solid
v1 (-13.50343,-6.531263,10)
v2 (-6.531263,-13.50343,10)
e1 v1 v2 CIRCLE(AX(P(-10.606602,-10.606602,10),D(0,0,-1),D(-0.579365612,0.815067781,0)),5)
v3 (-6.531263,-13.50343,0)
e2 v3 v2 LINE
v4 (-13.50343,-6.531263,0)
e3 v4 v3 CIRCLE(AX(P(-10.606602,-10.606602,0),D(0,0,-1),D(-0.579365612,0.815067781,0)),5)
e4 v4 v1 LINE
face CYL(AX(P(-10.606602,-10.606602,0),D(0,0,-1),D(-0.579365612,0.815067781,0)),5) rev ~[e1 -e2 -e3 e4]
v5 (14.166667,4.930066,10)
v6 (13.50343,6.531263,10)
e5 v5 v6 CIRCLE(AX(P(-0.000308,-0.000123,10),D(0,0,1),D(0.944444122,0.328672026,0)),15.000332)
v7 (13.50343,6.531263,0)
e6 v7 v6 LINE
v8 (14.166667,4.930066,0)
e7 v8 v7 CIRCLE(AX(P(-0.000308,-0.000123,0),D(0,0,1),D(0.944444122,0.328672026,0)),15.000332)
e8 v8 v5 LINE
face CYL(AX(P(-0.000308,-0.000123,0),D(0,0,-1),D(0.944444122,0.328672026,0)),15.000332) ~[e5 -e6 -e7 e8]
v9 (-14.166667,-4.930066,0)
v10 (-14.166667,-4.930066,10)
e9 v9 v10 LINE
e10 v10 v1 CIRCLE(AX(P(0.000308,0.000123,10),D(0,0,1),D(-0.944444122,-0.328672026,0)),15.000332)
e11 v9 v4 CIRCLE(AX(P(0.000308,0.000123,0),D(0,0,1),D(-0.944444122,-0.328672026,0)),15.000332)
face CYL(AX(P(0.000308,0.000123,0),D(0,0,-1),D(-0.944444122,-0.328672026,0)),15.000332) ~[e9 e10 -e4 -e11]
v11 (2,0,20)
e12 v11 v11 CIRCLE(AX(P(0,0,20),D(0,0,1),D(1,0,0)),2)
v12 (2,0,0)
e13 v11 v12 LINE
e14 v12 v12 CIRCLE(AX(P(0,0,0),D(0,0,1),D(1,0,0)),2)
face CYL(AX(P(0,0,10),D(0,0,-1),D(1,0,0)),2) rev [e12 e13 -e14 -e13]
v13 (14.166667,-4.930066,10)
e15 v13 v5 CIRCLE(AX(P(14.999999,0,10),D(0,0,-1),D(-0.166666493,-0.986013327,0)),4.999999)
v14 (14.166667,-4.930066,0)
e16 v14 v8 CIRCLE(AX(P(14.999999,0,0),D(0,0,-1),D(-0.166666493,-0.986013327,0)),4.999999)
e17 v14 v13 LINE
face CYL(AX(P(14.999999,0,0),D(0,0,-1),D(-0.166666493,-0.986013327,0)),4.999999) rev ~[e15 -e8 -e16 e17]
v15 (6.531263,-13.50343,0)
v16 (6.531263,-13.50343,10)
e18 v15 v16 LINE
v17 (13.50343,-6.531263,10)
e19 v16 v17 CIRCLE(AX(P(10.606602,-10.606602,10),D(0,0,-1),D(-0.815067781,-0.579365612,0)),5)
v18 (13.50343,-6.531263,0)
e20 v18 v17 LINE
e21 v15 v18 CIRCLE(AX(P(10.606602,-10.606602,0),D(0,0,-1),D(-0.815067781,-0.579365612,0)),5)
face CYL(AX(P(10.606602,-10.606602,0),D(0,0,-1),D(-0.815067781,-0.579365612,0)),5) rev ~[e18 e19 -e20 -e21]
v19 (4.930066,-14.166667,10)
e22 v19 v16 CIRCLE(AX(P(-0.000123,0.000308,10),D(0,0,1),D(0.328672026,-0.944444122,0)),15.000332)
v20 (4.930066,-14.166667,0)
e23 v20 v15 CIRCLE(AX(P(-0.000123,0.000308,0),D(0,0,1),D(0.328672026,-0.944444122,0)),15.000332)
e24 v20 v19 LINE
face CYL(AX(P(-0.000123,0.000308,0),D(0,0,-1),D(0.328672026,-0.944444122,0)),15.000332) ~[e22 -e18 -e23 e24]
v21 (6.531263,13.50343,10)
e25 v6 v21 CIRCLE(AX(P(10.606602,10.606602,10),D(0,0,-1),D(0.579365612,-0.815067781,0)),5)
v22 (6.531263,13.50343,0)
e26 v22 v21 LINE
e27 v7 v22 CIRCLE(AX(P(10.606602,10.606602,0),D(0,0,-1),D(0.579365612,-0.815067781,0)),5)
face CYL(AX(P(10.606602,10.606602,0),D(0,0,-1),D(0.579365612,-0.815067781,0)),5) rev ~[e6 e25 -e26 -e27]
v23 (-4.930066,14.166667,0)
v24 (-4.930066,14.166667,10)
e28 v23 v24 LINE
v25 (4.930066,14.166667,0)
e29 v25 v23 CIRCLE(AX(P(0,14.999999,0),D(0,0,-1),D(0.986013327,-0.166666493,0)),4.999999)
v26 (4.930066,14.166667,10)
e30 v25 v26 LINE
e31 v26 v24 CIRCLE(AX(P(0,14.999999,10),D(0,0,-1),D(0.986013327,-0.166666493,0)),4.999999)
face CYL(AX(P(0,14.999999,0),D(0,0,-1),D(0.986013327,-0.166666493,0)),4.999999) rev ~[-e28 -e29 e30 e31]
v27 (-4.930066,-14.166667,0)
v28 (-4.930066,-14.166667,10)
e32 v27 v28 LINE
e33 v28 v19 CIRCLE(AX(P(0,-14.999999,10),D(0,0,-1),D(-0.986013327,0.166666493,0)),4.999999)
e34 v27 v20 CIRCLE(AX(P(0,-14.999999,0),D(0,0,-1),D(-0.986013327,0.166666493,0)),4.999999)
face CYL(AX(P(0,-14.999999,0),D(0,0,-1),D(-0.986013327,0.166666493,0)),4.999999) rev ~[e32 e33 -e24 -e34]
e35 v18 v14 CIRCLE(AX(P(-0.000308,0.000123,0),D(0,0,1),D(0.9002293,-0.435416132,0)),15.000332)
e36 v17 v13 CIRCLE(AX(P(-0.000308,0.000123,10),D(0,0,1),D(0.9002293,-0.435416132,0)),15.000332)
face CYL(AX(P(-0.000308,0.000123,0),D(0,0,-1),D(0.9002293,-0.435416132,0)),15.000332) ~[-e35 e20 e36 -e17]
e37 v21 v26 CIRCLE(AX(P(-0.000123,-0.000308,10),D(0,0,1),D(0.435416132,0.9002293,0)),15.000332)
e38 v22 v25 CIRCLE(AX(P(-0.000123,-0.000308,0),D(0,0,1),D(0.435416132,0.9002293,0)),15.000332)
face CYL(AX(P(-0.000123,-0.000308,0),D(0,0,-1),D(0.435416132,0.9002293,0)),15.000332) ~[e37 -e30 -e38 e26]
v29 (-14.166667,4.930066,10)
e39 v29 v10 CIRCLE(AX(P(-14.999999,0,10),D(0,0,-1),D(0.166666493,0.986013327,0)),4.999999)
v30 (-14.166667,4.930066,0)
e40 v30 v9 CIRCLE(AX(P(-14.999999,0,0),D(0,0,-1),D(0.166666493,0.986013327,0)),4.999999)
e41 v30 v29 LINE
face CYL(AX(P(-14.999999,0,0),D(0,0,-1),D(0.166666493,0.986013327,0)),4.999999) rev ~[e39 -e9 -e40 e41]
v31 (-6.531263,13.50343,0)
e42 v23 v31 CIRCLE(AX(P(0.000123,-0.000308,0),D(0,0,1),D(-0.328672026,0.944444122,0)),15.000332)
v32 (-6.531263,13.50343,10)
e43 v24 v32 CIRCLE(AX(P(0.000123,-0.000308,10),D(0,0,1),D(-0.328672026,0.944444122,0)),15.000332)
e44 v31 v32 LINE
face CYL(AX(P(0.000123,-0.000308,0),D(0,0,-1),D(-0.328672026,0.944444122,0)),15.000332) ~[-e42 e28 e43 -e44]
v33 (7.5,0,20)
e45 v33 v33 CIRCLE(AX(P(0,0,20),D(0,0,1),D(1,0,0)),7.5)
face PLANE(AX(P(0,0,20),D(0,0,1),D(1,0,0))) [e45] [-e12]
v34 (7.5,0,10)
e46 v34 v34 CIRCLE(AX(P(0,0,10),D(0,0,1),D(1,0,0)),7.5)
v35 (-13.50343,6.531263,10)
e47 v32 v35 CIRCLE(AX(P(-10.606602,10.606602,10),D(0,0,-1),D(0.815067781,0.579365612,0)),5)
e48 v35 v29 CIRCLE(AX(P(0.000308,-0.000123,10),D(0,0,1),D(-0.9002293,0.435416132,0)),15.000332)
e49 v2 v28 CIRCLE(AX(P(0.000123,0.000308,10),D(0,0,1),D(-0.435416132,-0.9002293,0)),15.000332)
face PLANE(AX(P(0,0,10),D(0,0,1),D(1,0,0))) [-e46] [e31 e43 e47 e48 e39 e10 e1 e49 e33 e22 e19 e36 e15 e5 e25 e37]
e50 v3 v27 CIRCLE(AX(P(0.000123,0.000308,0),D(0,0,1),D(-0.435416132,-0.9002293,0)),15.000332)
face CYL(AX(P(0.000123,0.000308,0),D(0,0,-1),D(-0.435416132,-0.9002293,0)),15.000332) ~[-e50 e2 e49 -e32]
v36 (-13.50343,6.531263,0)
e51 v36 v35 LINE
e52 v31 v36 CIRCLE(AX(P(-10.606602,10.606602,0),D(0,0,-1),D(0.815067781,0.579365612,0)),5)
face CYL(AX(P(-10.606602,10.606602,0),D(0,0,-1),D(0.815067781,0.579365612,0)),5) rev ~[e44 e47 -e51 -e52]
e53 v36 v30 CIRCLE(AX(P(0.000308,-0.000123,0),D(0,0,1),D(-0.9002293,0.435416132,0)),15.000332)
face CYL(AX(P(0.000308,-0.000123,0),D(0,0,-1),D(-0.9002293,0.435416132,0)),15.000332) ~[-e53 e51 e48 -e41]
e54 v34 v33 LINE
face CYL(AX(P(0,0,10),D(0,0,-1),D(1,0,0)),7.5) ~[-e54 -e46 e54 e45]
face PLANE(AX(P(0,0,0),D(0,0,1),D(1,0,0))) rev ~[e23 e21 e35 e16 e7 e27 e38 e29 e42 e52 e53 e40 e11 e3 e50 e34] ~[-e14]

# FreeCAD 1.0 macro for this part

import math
import FreeCAD as App
import Part
import Sketcher

doc = App.newDocument("Part")
params = doc.addObject("Spreadsheet::Sheet", "Params")
for row, (alias, value) in enumerate([
    ("sketch1_diameter", "4 mm"),
    ("sketch1_radius", "5 mm"),
    ("pad1_length", "10 mm"),
    ("sketch2_diameter", "15 mm"),
    ("sketch2_diameter2", "4 mm"),
    ("pad2_length", "10 mm"),
], start=1):
    params.set(f"A{row}", alias)
    params.set(f"B{row}", "=" + value)
    params.setAlias(f"B{row}", alias)

body = doc.addObject("PartDesign::Body", "Body")

sketch1 = body.newObject("Sketcher::SketchObject", "Sketch")
sketch1.AttachmentSupport = (doc.getObject("XY_Plane"), [""])
sketch1.MapMode = "FlatFace"
sketch1.addGeometry(Part.ArcOfCircle(Part.Circle(App.Vector(10.606602, -10.606602, 0), App.Vector(0, 0, 1), 5), math.radians(54.594064), math.radians(215.405936)), False)
sketch1.addGeometry(Part.ArcOfCircle(Part.Circle(App.Vector(-0.000308, 0.000123, 0), App.Vector(0, 0, 1), 15.000332), math.radians(-25.811776), math.radians(-19.188193)), False)
sketch1.addGeometry(Part.ArcOfCircle(Part.Circle(App.Vector(14.999999, 0, 0), App.Vector(0, 0, 1), 4.999999), math.radians(99.594058), math.radians(260.405942)), False)
sketch1.addGeometry(Part.ArcOfCircle(Part.Circle(App.Vector(-0.000308, -0.000123, 0), App.Vector(0, 0, 1), 15.000332), math.radians(19.188193), math.radians(25.811776)), False)
sketch1.addGeometry(Part.ArcOfCircle(Part.Circle(App.Vector(10.606602, 10.606602, 0), App.Vector(0, 0, 1), 5), math.radians(144.594064), math.radians(305.405936)), False)
sketch1.addGeometry(Part.ArcOfCircle(Part.Circle(App.Vector(-0.000123, -0.000308, 0), App.Vector(0, 0, 1), 15.000332), math.radians(64.188224), math.radians(70.811807)), False)
sketch1.addGeometry(Part.ArcOfCircle(Part.Circle(App.Vector(0, 14.999999, 0), App.Vector(0, 0, 1), 4.999999), math.radians(-170.405942), math.radians(-9.594058)), False)
sketch1.addGeometry(Part.ArcOfCircle(Part.Circle(App.Vector(0.000123, -0.000308, 0), App.Vector(0, 0, 1), 15.000332), math.radians(109.188193), math.radians(115.811776)), False)
sketch1.addGeometry(Part.ArcOfCircle(Part.Circle(App.Vector(-10.606602, 10.606602, 0), App.Vector(0, 0, 1), 5), math.radians(-125.405936), math.radians(35.405936)), False)
sketch1.addGeometry(Part.ArcOfCircle(Part.Circle(App.Vector(0.000308, -0.000123, 0), App.Vector(0, 0, 1), 15.000332), math.radians(154.188224), math.radians(160.811807)), False)
sketch1.addGeometry(Part.ArcOfCircle(Part.Circle(App.Vector(-14.999999, 0, 0), App.Vector(0, 0, 1), 4.999999), math.radians(-80.405942), math.radians(80.405942)), False)
sketch1.addGeometry(Part.ArcOfCircle(Part.Circle(App.Vector(0.000308, 0.000123, 0), App.Vector(0, 0, 1), 15.000332), math.radians(-160.811807), math.radians(-154.188224)), False)
sketch1.addGeometry(Part.ArcOfCircle(Part.Circle(App.Vector(-10.606602, -10.606602, 0), App.Vector(0, 0, 1), 5), math.radians(-35.405936), math.radians(125.405936)), False)
sketch1.addGeometry(Part.ArcOfCircle(Part.Circle(App.Vector(0.000123, 0.000308, 0), App.Vector(0, 0, 1), 15.000332), math.radians(-115.811776), math.radians(-109.188193)), False)
sketch1.addGeometry(Part.ArcOfCircle(Part.Circle(App.Vector(0, -14.999999, 0), App.Vector(0, 0, 1), 4.999999), math.radians(9.594058), math.radians(170.405942)), False)
sketch1.addGeometry(Part.ArcOfCircle(Part.Circle(App.Vector(-0.000123, 0.000308, 0), App.Vector(0, 0, 1), 15.000332), math.radians(-70.811807), math.radians(-64.188224)), False)
sketch1.addGeometry(Part.Circle(App.Vector(0, 0, 0), App.Vector(0, 0, 1), 2), False)
sketch1.addConstraint(Sketcher.Constraint("Coincident", 0, 1, 1, 1))
sketch1.addConstraint(Sketcher.Constraint("Coincident", 1, 2, 2, 2))
sketch1.addConstraint(Sketcher.Constraint("Coincident", 2, 1, 3, 1))
sketch1.addConstraint(Sketcher.Constraint("Coincident", 3, 2, 4, 2))
sketch1.addConstraint(Sketcher.Constraint("Coincident", 4, 1, 5, 1))
sketch1.addConstraint(Sketcher.Constraint("Coincident", 5, 2, 6, 2))
sketch1.addConstraint(Sketcher.Constraint("Coincident", 6, 1, 7, 1))
sketch1.addConstraint(Sketcher.Constraint("Coincident", 7, 2, 8, 2))
sketch1.addConstraint(Sketcher.Constraint("Coincident", 8, 1, 9, 1))
sketch1.addConstraint(Sketcher.Constraint("Coincident", 9, 2, 10, 2))
sketch1.addConstraint(Sketcher.Constraint("Coincident", 10, 1, 11, 1))
sketch1.addConstraint(Sketcher.Constraint("Coincident", 11, 2, 12, 2))
sketch1.addConstraint(Sketcher.Constraint("Coincident", 12, 1, 13, 1))
sketch1.addConstraint(Sketcher.Constraint("Coincident", 13, 2, 14, 2))
sketch1.addConstraint(Sketcher.Constraint("Coincident", 14, 1, 15, 1))
sketch1.addConstraint(Sketcher.Constraint("Coincident", 15, 2, 0, 2))
sketch1.addConstraint(Sketcher.Constraint("Coincident", 16, 3, -1, 1))
sketch1.addConstraint(Sketcher.Constraint("Equal", 0, 2))
sketch1.addConstraint(Sketcher.Constraint("Equal", 1, 3))
sketch1.addConstraint(Sketcher.Constraint("Equal", 2, 4))
sketch1.addConstraint(Sketcher.Constraint("Equal", 3, 5))
sketch1.addConstraint(Sketcher.Constraint("Equal", 4, 6))
sketch1.addConstraint(Sketcher.Constraint("Equal", 5, 7))
sketch1.addConstraint(Sketcher.Constraint("Equal", 6, 8))
sketch1.addConstraint(Sketcher.Constraint("Equal", 7, 9))
sketch1.addConstraint(Sketcher.Constraint("Equal", 8, 10))
sketch1.addConstraint(Sketcher.Constraint("Equal", 9, 11))
sketch1.addConstraint(Sketcher.Constraint("Equal", 10, 12))
sketch1.addConstraint(Sketcher.Constraint("Equal", 11, 13))
sketch1.addConstraint(Sketcher.Constraint("Equal", 12, 14))
sketch1.addConstraint(Sketcher.Constraint("Equal", 13, 15))
sketch1.addConstraint(Sketcher.Constraint("Symmetric", 0, 3, 8, 3, -1, 1))
sketch1.addConstraint(Sketcher.Constraint("Symmetric", 1, 3, 9, 3, -1, 1))
sketch1.addConstraint(Sketcher.Constraint("Symmetric", 2, 3, 10, 3, -1, 1))
sketch1.addConstraint(Sketcher.Constraint("Symmetric", 3, 3, 11, 3, -1, 1))
sketch1.addConstraint(Sketcher.Constraint("Symmetric", 4, 3, 12, 3, -1, 1))
sketch1.addConstraint(Sketcher.Constraint("Symmetric", 5, 3, 13, 3, -1, 1))
sketch1.addConstraint(Sketcher.Constraint("Symmetric", 6, 3, 14, 3, -1, 1))
sketch1.addConstraint(Sketcher.Constraint("Symmetric", 7, 3, 15, 3, -1, 1))
sketch1.addConstraint(Sketcher.Constraint("Symmetric", 5, 3, 7, 3, -2))
sketch1.addConstraint(Sketcher.Constraint("Symmetric", 4, 3, 8, 3, -2))
sketch1.addConstraint(Sketcher.Constraint("Symmetric", 3, 3, 9, 3, -2))
sketch1.addConstraint(Sketcher.Constraint("PointOnObject", 2, 3, -1))
sketch1.addConstraint(Sketcher.Constraint("PointOnObject", 6, 3, -2))
sketch1.addConstraint(Sketcher.Constraint("Diameter", 16, 4.0))
sketch1.addConstraint(Sketcher.Constraint("Radius", 0, 5.0))
sketch1.addConstraint(Sketcher.Constraint("DistanceX", -1, 1, 2, 3, 14.999999))
sketch1.addConstraint(Sketcher.Constraint("DistanceY", -1, 1, 6, 3, 14.999999))
sketch1.addConstraint(Sketcher.Constraint("Radius", 1, 15.000332))
sketch1.addConstraint(Sketcher.Constraint("DistanceX", -1, 1, 0, 3, 10.606602))
sketch1.addConstraint(Sketcher.Constraint("DistanceY", 0, 3, -1, 1, 10.606602))
sketch1.addConstraint(Sketcher.Constraint("DistanceX", 5, 2, 2, 1, 9.236601))
sketch1.addConstraint(Sketcher.Constraint("DistanceY", 2, 1, 5, 2, 9.236601))
sketch1.addConstraint(Sketcher.Constraint("DistanceX", 1, 3, -1, 1, 0.000308))
sketch1.addConstraint(Sketcher.Constraint("DistanceY", 5, 3, -1, 1, 0.000308))
sketch1.setExpression("Constraints[44]", "Params.sketch1_diameter")
sketch1.setExpression("Constraints[45]", "Params.sketch1_radius")
pad1 = body.newObject("PartDesign::Pad", "Pad")
pad1.Profile = sketch1
pad1.setExpression("Length", "Params.pad1_length")

sketch2 = body.newObject("Sketcher::SketchObject", "Sketch001")
sketch2.AttachmentSupport = (doc.getObject("XY_Plane"), [""])
sketch2.MapMode = "FlatFace"
sketch2.AttachmentOffset = App.Placement(App.Vector(0, 0, 10), App.Rotation())
sketch2.addGeometry(Part.Circle(App.Vector(0, 0, 0), App.Vector(0, 0, 1), 7.5), False)
sketch2.addGeometry(Part.Circle(App.Vector(0, 0, 0), App.Vector(0, 0, 1), 2), False)
sketch2.addConstraint(Sketcher.Constraint("Coincident", 0, 3, -1, 1))
sketch2.addConstraint(Sketcher.Constraint("Coincident", 1, 3, -1, 1))
sketch2.addConstraint(Sketcher.Constraint("Diameter", 0, 15.0))
sketch2.addConstraint(Sketcher.Constraint("Diameter", 1, 4.0))
sketch2.setExpression("Constraints[2]", "Params.sketch2_diameter")
sketch2.setExpression("Constraints[3]", "Params.sketch2_diameter2")
pad2 = body.newObject("PartDesign::Pad", "Pad001")
pad2.Profile = sketch2
pad2.setExpression("Length", "Params.pad2_length")

doc.recompute()
